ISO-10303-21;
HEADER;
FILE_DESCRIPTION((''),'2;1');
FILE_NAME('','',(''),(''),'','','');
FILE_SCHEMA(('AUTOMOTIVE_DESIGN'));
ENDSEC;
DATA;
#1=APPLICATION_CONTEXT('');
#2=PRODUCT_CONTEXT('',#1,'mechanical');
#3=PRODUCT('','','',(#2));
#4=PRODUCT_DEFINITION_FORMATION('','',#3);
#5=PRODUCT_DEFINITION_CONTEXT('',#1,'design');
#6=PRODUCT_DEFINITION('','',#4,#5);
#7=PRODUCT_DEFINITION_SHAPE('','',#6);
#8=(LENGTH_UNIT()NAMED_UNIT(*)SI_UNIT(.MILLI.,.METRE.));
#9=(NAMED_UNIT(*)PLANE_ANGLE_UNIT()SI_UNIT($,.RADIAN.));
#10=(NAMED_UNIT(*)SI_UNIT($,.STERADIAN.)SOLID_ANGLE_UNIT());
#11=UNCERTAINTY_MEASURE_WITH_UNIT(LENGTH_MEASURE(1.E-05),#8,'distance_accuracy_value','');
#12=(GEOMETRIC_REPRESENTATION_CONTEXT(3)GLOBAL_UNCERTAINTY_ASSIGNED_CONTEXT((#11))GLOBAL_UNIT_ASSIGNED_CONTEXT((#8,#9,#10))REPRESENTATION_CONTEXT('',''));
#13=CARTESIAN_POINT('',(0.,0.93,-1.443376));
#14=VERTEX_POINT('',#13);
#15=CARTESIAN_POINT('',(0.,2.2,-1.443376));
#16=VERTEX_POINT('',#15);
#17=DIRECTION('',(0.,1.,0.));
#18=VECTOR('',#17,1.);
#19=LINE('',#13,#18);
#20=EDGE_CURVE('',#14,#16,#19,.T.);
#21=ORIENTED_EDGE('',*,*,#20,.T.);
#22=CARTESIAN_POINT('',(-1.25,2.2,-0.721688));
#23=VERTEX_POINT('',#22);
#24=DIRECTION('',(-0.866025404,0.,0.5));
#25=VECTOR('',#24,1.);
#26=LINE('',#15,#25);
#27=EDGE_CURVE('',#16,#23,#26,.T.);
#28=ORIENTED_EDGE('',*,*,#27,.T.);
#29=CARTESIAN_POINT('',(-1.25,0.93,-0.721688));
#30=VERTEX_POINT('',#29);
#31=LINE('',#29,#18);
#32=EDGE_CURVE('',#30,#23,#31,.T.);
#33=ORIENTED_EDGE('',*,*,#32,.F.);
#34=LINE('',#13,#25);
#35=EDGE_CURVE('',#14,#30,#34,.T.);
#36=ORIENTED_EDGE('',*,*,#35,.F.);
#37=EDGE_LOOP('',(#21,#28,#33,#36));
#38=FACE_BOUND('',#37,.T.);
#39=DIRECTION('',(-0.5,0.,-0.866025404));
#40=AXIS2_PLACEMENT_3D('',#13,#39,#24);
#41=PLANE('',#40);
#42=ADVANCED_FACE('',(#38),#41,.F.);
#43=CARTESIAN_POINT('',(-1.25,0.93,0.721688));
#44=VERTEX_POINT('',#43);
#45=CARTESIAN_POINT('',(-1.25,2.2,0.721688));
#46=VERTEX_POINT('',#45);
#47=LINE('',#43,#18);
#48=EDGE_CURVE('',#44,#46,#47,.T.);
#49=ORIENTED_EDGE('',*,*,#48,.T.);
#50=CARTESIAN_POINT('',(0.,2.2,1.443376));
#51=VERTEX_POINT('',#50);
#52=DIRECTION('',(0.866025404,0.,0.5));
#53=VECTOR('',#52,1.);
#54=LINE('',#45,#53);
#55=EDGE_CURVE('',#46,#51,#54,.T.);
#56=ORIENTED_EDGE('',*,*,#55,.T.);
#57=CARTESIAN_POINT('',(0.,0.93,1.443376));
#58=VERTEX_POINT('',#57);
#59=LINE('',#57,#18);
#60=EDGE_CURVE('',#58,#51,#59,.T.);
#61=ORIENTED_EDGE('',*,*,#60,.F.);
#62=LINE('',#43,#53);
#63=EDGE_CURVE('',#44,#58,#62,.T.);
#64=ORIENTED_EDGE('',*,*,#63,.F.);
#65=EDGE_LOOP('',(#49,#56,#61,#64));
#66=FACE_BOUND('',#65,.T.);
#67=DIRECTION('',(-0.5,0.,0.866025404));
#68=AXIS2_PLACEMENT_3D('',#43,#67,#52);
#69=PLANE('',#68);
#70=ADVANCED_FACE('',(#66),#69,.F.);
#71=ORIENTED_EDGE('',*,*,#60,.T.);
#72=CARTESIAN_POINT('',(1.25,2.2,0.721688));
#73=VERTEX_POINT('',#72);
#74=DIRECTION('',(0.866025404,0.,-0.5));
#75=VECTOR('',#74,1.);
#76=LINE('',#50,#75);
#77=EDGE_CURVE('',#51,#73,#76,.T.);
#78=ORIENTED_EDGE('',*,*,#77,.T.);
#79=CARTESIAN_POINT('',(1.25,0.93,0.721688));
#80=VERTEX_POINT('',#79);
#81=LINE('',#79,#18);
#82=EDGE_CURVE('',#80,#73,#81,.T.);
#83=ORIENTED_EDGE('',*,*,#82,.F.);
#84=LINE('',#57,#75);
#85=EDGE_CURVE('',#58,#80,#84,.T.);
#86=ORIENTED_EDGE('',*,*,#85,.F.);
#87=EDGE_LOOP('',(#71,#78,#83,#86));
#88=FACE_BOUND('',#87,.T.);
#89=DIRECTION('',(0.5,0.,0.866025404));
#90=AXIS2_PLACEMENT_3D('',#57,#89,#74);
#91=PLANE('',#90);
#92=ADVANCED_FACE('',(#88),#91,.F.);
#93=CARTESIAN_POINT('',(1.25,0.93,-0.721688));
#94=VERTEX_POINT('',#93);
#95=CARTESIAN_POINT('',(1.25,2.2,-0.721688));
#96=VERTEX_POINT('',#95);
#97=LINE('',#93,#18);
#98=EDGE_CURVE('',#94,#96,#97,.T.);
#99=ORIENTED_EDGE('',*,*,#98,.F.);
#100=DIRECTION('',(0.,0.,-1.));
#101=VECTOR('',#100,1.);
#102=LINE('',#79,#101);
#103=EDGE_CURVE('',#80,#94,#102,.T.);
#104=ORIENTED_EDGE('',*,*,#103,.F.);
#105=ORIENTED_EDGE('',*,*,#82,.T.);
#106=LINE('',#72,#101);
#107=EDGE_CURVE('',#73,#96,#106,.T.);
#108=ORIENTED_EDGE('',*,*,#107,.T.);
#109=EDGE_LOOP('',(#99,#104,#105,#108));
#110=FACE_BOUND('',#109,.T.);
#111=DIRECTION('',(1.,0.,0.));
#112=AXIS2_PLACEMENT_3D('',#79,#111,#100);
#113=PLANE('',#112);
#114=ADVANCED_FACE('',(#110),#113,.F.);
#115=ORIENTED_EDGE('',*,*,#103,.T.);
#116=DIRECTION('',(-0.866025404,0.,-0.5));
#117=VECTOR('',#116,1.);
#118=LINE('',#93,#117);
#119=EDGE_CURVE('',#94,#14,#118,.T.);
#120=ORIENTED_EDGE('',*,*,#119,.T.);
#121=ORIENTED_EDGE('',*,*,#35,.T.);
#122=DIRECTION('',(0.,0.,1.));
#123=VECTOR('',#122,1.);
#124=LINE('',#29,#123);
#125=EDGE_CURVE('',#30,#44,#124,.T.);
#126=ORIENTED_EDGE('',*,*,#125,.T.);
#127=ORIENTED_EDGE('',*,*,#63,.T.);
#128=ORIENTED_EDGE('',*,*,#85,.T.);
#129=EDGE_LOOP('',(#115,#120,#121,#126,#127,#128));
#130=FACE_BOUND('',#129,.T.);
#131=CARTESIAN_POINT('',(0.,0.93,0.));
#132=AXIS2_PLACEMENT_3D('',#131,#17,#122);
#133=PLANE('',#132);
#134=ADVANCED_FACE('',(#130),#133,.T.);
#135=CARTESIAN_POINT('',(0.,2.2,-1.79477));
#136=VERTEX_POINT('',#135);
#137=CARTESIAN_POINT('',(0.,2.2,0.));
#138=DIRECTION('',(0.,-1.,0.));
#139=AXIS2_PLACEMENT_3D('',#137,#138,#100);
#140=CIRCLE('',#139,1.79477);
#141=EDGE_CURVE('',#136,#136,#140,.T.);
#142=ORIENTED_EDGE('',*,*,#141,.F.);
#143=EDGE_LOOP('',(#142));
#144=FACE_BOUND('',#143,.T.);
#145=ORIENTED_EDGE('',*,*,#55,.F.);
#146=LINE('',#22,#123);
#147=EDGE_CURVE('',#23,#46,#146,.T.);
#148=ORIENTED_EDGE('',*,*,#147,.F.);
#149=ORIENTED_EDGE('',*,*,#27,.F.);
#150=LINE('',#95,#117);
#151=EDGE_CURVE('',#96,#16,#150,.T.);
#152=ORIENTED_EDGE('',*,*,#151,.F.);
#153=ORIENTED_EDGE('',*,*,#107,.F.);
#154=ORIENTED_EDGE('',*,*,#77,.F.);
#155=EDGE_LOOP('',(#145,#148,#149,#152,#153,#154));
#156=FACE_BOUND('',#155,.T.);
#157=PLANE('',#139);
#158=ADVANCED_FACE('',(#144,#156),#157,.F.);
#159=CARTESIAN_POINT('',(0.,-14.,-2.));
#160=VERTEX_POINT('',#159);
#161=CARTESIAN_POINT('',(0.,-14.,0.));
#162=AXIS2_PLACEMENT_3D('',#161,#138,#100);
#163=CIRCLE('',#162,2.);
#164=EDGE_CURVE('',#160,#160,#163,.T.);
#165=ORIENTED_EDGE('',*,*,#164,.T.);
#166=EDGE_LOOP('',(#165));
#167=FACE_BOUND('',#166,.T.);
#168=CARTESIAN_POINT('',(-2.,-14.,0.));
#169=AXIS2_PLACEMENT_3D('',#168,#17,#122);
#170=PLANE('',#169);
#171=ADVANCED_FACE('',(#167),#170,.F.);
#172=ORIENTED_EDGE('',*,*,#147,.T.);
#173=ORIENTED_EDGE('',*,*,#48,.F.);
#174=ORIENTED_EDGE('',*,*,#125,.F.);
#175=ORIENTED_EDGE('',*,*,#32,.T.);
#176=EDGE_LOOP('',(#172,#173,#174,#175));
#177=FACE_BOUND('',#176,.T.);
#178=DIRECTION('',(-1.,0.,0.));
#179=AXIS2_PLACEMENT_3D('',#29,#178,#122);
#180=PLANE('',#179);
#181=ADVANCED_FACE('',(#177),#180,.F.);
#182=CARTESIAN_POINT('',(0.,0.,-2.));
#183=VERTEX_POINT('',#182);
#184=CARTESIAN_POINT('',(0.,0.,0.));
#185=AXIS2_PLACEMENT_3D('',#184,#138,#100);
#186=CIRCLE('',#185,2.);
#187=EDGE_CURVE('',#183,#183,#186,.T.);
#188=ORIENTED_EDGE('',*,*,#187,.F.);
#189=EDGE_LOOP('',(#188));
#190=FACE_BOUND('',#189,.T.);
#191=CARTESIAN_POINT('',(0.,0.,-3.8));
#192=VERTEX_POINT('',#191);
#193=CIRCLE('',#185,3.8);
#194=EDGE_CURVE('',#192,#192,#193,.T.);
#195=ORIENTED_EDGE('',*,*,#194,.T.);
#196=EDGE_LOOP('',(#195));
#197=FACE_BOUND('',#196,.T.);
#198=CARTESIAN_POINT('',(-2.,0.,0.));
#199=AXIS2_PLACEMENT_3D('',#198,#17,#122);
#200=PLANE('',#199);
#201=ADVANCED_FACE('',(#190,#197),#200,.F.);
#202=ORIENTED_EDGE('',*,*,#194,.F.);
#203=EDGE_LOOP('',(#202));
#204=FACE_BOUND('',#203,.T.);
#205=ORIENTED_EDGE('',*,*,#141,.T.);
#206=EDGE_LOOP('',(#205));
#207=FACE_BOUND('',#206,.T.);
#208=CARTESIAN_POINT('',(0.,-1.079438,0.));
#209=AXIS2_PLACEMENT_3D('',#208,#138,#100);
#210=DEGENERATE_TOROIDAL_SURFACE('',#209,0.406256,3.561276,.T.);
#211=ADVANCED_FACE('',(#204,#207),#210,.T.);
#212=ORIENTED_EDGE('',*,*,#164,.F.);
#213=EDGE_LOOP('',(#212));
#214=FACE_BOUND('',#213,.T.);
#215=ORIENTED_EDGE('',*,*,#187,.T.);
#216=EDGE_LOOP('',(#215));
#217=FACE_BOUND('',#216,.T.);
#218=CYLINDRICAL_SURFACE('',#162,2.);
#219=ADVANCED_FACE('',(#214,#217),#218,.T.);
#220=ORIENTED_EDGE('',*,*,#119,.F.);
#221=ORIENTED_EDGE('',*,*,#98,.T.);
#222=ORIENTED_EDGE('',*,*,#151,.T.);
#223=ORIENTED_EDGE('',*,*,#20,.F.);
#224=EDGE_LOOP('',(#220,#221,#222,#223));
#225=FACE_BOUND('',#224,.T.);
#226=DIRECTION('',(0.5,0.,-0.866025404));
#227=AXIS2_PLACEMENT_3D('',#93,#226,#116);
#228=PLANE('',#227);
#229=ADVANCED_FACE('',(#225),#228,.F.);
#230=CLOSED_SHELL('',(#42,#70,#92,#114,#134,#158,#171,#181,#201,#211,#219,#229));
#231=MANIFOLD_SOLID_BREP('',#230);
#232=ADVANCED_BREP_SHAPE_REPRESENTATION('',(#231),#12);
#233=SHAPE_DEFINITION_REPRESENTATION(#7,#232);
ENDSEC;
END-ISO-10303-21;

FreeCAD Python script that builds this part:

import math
import FreeCAD as App
import Part
import Sketcher
Q = App.Units.Quantity

doc = App.newDocument("Part")
body = doc.addObject("PartDesign::Body", "Body")

# Sketch on XY plane
sketch1 = body.newObject("Sketcher::SketchObject", "Sketch")
sketch1.AttachmentSupport = (doc.getObject("XY_Plane"), [""])
sketch1.MapMode = "FlatFace"
sketch1.addGeometry([
    Part.LineSegment(App.Vector(-3.8, 0, 0), App.Vector(-2, 0, 0)),  # 0
    Part.LineSegment(App.Vector(-2, 0, 0), App.Vector(-2, -14, 0)),  # 1
    Part.LineSegment(App.Vector(-2, -14, 0), App.Vector(0, -14, 0)),  # 2
    Part.LineSegment(App.Vector(0, -14, 0), App.Vector(0, 2.2, 0)),  # 3
    Part.LineSegment(App.Vector(0, 2.2, 0), App.Vector(-1.8, 2.2, 0)),  # 4
    Part.ArcOfCircle(Part.Circle(App.Vector(-0.4, -1.1, 0), App.Vector(0, 0, 1), 3.6), math.radians(113), math.radians(162)),  # 5
], False)
sketch1.addConstraint([
    Sketcher.Constraint("Coincident", 0, 2, 1, 1),
    Sketcher.Constraint("Coincident", 1, 2, 2, 1),
    Sketcher.Constraint("Coincident", 2, 2, 3, 1),
    Sketcher.Constraint("Coincident", 3, 2, 4, 1),
    Sketcher.Constraint("Coincident", 4, 2, 5, 1),
    Sketcher.Constraint("Coincident", 5, 2, 0, 1),
    Sketcher.Constraint("Horizontal", 0),
    Sketcher.Constraint("Vertical", 1),
    Sketcher.Constraint("Horizontal", 2),
    Sketcher.Constraint("Vertical", 3),
    Sketcher.Constraint("Horizontal", 4),
    Sketcher.Constraint("PointOnObject", 0, 2, -1),
    Sketcher.Constraint("PointOnObject", 2, 2, -2),
    Sketcher.Constraint("DistanceX", 2, 1, 2, 2, 2.0),
    Sketcher.Constraint("DistanceY", 1, 2, 1, 1, 14.0),
    Sketcher.Constraint("DistanceX", 0, 1, 0, 2, 1.8),
    Sketcher.Constraint("DistanceY", 3, 1, 3, 2, 16.2),
    Sketcher.Constraint("Radius", 5, 3.561276),
    Sketcher.Constraint("DistanceX", 4, 2, 4, 1, 1.79477),
])
revolution = body.newObject("PartDesign::Revolution", "Revolution")
revolution.Profile = sketch1
revolution.ReferenceAxis = (sketch1, ["V_Axis"])
revolution.Angle = 360

# Sketch on XZ plane
sketch2 = body.newObject("Sketcher::SketchObject", "Sketch001")
sketch2.AttachmentSupport = (doc.getObject("XZ_Plane"), [""])
sketch2.MapMode = "FlatFace"
sketch2.AttachmentOffset = App.Placement(App.Vector(0, 0, -2.2), App.Rotation())
sketch2.addGeometry([
    Part.LineSegment(App.Vector(-1.2, -0.7, 0), App.Vector(-1.2, 0.7, 0)),  # 0
    Part.LineSegment(App.Vector(-1.2, 0.7, 0), App.Vector(0, 1.4, 0)),  # 1
    Part.LineSegment(App.Vector(0, 1.4, 0), App.Vector(1.2, 0.7, 0)),  # 2
    Part.LineSegment(App.Vector(1.2, 0.7, 0), App.Vector(1.2, -0.7, 0)),  # 3
    Part.LineSegment(App.Vector(1.2, -0.7, 0), App.Vector(0, -1.4, 0)),  # 4
    Part.LineSegment(App.Vector(0, -1.4, 0), App.Vector(-1.2, -0.7, 0)),  # 5
], False)
sketch2.addConstraint([
    Sketcher.Constraint("Coincident", 0, 2, 1, 1),
    Sketcher.Constraint("Coincident", 1, 2, 2, 1),
    Sketcher.Constraint("Coincident", 2, 2, 3, 1),
    Sketcher.Constraint("Coincident", 3, 2, 4, 1),
    Sketcher.Constraint("Coincident", 4, 2, 5, 1),
    Sketcher.Constraint("Coincident", 5, 2, 0, 1),
    Sketcher.Constraint("Vertical", 0),
    Sketcher.Constraint("Vertical", 3),
    Sketcher.Constraint("Symmetric", 0, 2, 3, 2, -1, 1),
    Sketcher.Constraint("Symmetric", 1, 2, 4, 2, -1, 1),
    Sketcher.Constraint("PointOnObject", 1, 2, -2),
    Sketcher.Constraint("Parallel", 2, 5),
    Sketcher.Constraint("Horizontal", 0, 2, 2, 2),
    Sketcher.Constraint("Angle", 1, Q("30 deg")),
    Sketcher.Constraint("DistanceX", 0, 2, 2, 2, 2.5),
    Sketcher.Constraint("DistanceY", 0, 1, 0, 2, 1.443376),
])
pocket1 = body.newObject("PartDesign::Pocket", "Pocket")
pocket1.Profile = sketch2
pocket1.Length = 1.27
pocket1.Reversed = True

doc.recompute()
